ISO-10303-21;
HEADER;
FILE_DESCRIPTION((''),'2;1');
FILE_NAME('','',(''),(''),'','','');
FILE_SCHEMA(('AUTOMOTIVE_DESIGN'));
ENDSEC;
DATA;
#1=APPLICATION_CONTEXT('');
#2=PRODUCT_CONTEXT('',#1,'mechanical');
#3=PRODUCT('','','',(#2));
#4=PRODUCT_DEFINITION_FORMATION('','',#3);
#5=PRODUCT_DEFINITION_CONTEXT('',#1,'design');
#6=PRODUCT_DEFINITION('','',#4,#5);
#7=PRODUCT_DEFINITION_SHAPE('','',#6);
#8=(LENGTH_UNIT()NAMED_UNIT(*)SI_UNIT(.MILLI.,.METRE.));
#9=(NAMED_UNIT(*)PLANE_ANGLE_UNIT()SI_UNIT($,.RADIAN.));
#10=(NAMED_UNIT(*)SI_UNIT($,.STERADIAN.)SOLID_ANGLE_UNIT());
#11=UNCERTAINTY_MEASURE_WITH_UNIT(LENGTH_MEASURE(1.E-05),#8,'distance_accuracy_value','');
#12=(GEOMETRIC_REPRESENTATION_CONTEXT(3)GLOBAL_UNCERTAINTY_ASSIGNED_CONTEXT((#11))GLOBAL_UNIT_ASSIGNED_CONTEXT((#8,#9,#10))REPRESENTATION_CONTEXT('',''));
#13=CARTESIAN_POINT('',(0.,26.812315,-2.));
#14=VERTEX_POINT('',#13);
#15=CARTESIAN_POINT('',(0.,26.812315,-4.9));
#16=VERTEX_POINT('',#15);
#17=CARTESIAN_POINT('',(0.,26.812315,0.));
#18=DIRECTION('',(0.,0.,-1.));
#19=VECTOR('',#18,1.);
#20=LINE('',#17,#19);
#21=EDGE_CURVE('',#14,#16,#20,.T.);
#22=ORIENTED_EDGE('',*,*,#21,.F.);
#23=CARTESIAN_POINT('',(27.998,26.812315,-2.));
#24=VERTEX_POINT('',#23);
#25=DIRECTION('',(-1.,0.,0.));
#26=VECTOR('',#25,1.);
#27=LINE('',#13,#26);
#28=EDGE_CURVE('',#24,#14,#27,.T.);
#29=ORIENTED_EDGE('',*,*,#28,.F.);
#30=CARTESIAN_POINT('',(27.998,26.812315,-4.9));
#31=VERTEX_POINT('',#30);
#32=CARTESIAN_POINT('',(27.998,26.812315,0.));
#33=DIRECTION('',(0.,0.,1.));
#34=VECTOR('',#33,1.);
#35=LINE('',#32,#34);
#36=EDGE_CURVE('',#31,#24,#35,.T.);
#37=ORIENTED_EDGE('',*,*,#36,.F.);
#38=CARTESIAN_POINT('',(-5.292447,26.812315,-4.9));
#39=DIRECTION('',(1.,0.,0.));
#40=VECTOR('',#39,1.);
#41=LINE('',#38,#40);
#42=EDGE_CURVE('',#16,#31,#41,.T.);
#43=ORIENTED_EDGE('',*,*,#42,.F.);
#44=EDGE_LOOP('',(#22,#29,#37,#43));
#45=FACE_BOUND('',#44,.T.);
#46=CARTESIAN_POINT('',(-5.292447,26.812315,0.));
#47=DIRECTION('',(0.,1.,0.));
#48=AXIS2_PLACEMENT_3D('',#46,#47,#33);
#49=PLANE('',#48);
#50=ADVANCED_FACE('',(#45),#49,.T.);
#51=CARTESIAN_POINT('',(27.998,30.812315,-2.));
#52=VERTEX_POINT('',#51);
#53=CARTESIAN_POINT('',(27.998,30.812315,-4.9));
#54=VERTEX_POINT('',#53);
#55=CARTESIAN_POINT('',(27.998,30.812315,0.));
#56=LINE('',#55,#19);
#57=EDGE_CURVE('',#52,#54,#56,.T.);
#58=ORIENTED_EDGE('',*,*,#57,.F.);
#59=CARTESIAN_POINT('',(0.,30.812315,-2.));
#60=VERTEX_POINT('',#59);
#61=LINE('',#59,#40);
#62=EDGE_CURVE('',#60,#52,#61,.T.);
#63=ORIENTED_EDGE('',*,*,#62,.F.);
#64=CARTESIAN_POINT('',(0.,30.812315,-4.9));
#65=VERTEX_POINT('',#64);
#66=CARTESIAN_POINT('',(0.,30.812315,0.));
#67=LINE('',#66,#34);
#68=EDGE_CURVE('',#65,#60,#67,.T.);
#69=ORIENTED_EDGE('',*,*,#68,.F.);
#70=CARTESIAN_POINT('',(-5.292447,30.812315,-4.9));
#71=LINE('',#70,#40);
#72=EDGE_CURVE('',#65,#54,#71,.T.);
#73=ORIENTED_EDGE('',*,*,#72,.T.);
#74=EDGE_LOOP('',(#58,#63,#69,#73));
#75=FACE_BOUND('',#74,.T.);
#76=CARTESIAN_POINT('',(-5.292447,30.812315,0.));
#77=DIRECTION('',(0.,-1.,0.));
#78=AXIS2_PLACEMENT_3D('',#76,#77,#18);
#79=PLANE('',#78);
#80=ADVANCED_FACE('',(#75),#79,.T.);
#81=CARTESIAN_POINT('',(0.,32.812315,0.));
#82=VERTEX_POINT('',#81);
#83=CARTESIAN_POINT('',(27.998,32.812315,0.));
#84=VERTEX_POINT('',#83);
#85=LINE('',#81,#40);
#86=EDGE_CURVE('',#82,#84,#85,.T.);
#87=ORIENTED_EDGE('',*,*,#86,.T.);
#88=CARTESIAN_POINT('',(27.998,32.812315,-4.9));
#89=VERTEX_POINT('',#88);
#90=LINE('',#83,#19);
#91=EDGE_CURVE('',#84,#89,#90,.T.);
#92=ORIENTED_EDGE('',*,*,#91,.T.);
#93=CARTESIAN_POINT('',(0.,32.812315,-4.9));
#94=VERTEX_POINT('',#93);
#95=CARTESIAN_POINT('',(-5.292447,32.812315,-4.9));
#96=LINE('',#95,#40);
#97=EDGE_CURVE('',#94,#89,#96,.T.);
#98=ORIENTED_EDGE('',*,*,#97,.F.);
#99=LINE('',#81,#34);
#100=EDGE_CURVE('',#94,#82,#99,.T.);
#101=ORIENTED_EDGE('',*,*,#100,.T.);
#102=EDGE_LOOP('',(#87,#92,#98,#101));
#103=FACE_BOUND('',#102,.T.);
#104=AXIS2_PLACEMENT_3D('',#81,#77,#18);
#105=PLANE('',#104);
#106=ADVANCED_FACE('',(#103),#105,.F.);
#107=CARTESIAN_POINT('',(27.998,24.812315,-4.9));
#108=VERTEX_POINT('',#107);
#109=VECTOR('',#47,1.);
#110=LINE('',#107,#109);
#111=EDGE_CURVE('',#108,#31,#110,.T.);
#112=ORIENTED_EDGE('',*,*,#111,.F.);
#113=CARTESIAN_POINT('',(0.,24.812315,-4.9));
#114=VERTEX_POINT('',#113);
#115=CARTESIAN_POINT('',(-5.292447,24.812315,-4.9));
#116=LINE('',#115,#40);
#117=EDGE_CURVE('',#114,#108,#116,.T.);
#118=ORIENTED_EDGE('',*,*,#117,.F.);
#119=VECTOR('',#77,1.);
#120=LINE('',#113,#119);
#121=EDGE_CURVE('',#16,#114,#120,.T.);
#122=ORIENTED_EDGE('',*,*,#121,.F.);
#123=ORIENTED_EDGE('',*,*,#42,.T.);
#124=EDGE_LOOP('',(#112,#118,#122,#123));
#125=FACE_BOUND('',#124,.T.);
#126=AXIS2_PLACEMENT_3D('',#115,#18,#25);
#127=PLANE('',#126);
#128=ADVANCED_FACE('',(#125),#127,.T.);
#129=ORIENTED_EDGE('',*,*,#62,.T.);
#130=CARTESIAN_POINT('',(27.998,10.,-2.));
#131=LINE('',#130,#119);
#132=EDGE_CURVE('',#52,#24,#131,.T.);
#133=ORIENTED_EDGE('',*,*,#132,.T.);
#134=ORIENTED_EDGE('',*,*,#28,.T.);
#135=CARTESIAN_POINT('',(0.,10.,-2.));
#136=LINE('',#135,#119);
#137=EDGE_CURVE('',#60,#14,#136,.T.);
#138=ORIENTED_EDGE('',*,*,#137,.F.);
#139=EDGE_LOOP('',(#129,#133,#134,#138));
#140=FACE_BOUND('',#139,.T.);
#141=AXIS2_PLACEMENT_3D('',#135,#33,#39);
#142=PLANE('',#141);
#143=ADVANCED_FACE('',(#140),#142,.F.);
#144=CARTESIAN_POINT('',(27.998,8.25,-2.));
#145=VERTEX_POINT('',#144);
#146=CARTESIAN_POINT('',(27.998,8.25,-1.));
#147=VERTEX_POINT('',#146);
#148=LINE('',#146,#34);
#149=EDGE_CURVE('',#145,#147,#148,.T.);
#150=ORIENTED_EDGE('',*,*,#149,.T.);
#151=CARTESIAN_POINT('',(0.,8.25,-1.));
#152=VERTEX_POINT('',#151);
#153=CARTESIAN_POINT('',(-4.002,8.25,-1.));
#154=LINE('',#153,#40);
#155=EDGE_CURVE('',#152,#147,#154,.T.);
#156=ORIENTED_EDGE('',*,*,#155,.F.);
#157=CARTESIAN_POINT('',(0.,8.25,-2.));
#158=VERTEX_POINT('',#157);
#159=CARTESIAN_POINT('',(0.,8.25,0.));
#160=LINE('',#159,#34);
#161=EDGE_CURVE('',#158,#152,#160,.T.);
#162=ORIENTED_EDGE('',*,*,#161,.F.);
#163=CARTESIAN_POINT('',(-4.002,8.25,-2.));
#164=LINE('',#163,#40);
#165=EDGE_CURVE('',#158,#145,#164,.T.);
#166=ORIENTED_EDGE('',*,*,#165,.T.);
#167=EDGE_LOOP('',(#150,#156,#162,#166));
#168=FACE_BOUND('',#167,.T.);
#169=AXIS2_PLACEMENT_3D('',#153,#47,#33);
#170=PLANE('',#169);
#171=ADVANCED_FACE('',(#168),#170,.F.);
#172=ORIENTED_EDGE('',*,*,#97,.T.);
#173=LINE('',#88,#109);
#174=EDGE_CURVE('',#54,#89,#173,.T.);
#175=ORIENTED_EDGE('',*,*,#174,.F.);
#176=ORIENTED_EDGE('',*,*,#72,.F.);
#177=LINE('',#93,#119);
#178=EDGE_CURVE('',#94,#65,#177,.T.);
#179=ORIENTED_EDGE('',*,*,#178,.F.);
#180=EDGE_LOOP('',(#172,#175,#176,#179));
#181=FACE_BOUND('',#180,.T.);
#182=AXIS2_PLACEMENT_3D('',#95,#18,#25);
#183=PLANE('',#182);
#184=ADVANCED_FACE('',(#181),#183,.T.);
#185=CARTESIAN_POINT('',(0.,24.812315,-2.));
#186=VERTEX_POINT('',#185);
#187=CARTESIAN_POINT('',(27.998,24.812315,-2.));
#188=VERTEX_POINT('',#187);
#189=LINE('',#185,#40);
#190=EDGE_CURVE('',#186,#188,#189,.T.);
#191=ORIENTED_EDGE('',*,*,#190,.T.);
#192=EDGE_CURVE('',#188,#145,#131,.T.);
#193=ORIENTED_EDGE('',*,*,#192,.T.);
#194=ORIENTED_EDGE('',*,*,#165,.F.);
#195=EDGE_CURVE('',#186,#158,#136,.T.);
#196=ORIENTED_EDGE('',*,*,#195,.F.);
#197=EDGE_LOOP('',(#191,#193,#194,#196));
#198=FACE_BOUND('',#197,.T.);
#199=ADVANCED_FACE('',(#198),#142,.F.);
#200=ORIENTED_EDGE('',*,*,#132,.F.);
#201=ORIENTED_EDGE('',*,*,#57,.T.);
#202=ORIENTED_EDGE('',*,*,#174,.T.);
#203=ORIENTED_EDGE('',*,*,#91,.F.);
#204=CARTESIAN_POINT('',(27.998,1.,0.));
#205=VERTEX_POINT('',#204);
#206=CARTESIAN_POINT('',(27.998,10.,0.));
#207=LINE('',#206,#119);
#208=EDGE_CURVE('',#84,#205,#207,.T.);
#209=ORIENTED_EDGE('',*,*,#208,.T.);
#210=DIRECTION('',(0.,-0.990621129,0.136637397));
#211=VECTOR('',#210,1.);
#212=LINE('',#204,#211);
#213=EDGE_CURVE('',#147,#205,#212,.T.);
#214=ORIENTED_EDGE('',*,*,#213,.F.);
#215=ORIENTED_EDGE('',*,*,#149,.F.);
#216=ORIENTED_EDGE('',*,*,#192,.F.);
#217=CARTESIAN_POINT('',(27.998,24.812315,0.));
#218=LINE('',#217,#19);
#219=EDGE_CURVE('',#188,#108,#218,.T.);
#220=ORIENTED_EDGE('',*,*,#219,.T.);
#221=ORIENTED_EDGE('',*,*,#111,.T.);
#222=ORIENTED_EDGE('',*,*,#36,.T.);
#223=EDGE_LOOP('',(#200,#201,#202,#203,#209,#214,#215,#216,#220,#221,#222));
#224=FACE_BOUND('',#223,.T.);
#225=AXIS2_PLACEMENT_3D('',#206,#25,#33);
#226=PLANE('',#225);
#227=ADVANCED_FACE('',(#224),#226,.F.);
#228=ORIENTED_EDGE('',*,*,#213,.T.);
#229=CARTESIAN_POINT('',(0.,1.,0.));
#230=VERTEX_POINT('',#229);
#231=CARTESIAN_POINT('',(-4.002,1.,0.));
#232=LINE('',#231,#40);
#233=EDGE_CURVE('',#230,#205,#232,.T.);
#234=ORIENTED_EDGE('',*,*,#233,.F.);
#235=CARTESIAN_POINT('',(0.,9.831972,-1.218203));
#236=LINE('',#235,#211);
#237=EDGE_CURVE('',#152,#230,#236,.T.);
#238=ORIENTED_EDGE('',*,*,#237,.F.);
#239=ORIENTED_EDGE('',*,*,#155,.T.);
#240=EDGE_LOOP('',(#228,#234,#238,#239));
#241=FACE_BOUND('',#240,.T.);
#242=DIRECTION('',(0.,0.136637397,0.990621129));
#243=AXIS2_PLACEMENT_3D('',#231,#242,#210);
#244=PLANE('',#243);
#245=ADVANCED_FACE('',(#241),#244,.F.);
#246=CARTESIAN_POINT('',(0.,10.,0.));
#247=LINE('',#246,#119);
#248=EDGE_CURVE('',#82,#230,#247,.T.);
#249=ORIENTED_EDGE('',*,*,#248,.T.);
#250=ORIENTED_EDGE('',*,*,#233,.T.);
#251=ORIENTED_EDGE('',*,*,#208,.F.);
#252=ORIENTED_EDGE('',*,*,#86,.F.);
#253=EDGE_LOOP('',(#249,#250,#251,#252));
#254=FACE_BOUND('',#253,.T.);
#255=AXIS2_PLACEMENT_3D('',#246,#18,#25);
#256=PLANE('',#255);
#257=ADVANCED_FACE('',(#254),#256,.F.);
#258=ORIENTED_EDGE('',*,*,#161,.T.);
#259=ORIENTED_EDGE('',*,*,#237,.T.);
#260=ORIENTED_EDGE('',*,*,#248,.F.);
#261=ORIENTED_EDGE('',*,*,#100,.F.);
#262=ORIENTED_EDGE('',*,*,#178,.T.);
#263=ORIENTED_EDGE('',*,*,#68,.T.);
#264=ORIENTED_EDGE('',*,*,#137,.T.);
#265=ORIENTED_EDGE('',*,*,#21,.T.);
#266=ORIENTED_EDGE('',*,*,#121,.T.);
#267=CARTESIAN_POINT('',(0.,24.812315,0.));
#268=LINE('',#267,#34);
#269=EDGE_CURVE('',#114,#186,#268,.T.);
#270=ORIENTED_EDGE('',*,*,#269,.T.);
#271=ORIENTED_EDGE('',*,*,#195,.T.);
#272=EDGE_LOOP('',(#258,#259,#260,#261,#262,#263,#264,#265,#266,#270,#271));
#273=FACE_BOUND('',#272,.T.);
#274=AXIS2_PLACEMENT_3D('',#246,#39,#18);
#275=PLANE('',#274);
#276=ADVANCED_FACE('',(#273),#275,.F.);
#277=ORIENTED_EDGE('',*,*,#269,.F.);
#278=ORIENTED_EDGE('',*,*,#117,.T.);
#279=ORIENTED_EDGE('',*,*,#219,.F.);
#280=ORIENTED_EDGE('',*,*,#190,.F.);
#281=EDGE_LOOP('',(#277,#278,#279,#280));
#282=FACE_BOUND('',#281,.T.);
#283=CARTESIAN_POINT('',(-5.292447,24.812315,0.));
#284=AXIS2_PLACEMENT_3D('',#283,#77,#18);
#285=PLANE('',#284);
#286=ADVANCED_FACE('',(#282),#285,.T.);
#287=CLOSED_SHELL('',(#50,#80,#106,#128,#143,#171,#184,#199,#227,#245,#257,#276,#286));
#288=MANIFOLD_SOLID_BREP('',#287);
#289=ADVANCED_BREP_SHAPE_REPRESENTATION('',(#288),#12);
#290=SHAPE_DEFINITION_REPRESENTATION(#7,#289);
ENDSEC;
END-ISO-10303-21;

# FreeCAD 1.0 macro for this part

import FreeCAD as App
import Part
import Sketcher

V = App.Vector
Q = App.Units.Quantity

doc = App.newDocument("Part")
body = doc.addObject("PartDesign::Body", "Body")

sketch1 = body.newObject("Sketcher::SketchObject", "Sketch")
sketch1.AttachmentSupport = (doc.getObject("XZ_Plane"), [""])
sketch1.MapMode = "FlatFace"
sketch1.addGeometry([
    Part.LineSegment(V(0, -2, 0), V(0, 0, 0)),
    Part.LineSegment(V(0, 0, 0), V(27.998, 0, 0)),
    Part.LineSegment(V(27.998, 0, 0), V(27.998, -2, 0)),
    Part.LineSegment(V(27.998, -2, 0), V(0, -2, 0)),
], False)
sketch1.addConstraint([
    Sketcher.Constraint("Coincident", 0, 2, 1, 1),
    Sketcher.Constraint("Coincident", 1, 2, 2, 1),
    Sketcher.Constraint("Coincident", 2, 2, 3, 1),
    Sketcher.Constraint("Coincident", 3, 2, 0, 1),
    Sketcher.Constraint("Vertical", 0),
    Sketcher.Constraint("Horizontal", 1),
    Sketcher.Constraint("Vertical", 2),
    Sketcher.Constraint("Horizontal", 3),
    Sketcher.Constraint("Coincident", 0, 2, -1, 1),
    Sketcher.Constraint("DistanceY", 0, 1, 0, 2, Q("2 mm")),
    Sketcher.Constraint("DistanceX", 1, 1, 1, 2, Q("27.998 mm")),
])
pad1 = body.newObject("PartDesign::Pad", "Pad")
pad1.Profile = sketch1
pad1.Length = 10
pad1.Reversed = True

sketch2 = body.newObject("Sketcher::SketchObject", "Sketch001")
sketch2.AttachmentSupport = (doc.getObject("YZ_Plane"), [""])
sketch2.MapMode = "FlatFace"
sketch2.AttachmentOffset = App.Placement(V(0, 0, 27.998), App.Rotation())
sketch2.addGeometry([
    Part.LineSegment(V(8.25, -2, 0), V(8.25, -1, 0)),
    Part.LineSegment(V(8.25, -1, 0), V(1, 0, 0)),
    Part.LineSegment(V(1, 0, 0), V(0, 0, 0)),
    Part.LineSegment(V(0, 0, 0), V(0, -2, 0)),
    Part.LineSegment(V(0, -2, 0), V(8.25, -2, 0)),
], False)
sketch2.addConstraint([
    Sketcher.Constraint("Coincident", 0, 2, 1, 1),
    Sketcher.Constraint("Coincident", 1, 2, 2, 1),
    Sketcher.Constraint("Coincident", 2, 2, 3, 1),
    Sketcher.Constraint("Coincident", 3, 2, 4, 1),
    Sketcher.Constraint("Coincident", 4, 2, 0, 1),
    Sketcher.Constraint("Vertical", 0),
    Sketcher.Constraint("Horizontal", 2),
    Sketcher.Constraint("Vertical", 3),
    Sketcher.Constraint("Horizontal", 4),
    Sketcher.Constraint("Coincident", 2, 2, -1, 1),
    Sketcher.Constraint("Equal", 2, 0),
    Sketcher.Constraint("DistanceX", 2, 2, 2, 1, Q("1 mm")),
    Sketcher.Constraint("DistanceY", 3, 2, 3, 1, Q("2 mm")),
    Sketcher.Constraint("DistanceX", 4, 1, 4, 2, Q("8.25 mm")),
])
pocket1 = body.newObject("PartDesign::Pocket", "Pocket")
pocket1.Profile = sketch2
pocket1.Length = 32

sketch3 = body.newObject("Sketcher::SketchObject", "Sketch002")
sketch3.AttachmentSupport = (doc.getObject("XZ_Plane"), [""])
sketch3.MapMode = "FlatFace"
sketch3.AttachmentOffset = App.Placement(V(0, 0, -10), App.Rotation())
sketch3.addGeometry([
    Part.LineSegment(V(0, -2, 0), V(0, 0, 0)),
    Part.LineSegment(V(0, 0, 0), V(27.998, 0, 0)),
    Part.LineSegment(V(27.998, 0, 0), V(27.998, -2, 0)),
    Part.LineSegment(V(27.998, -2, 0), V(0, -2, 0)),
], False)
sketch3.addConstraint([
    Sketcher.Constraint("Coincident", 0, 2, 1, 1),
    Sketcher.Constraint("Coincident", 1, 2, 2, 1),
    Sketcher.Constraint("Coincident", 2, 2, 3, 1),
    Sketcher.Constraint("Coincident", 3, 2, 0, 1),
    Sketcher.Constraint("Vertical", 0),
    Sketcher.Constraint("Horizontal", 1),
    Sketcher.Constraint("Vertical", 2),
    Sketcher.Constraint("Horizontal", 3),
    Sketcher.Constraint("Coincident", 0, 2, -1, 1),
    Sketcher.Constraint("DistanceY", 0, 1, 0, 2, Q("2 mm")),
    Sketcher.Constraint("DistanceX", 1, 1, 1, 2, Q("27.998 mm")),
])
pad2 = body.newObject("PartDesign::Pad", "Pad001")
pad2.Profile = sketch3
pad2.Length = 22.812315
pad2.Reversed = True

sketch4 = body.newObject("Sketcher::SketchObject", "Sketch003")
sketch4.AttachmentSupport = (doc.getObject("YZ_Plane"), [""])
sketch4.MapMode = "FlatFace"
sketch4.AttachmentOffset = App.Placement(V(0, 0, 27.998), App.Rotation())
sketch4.addGeometry([
    Part.LineSegment(V(32.812315, 0, 0), V(30.812315, 0, 0)),
    Part.LineSegment(V(30.812315, 0, 0), V(30.812315, -4.9, 0)),
    Part.LineSegment(V(30.812315, -4.9, 0), V(32.812315, -4.9, 0)),
    Part.LineSegment(V(32.812315, -4.9, 0), V(32.812315, 0, 0)),
    Part.LineSegment(V(26.812315, 0, 0), V(24.812315, 0, 0)),
    Part.LineSegment(V(24.812315, 0, 0), V(24.812315, -4.9, 0)),
    Part.LineSegment(V(24.812315, -4.9, 0), V(26.812315, -4.9, 0)),
    Part.LineSegment(V(26.812315, -4.9, 0), V(26.812315, 0, 0)),
], False)
sketch4.addConstraint([
    Sketcher.Constraint("Coincident", 0, 2, 1, 1),
    Sketcher.Constraint("Coincident", 1, 2, 2, 1),
    Sketcher.Constraint("Coincident", 2, 2, 3, 1),
    Sketcher.Constraint("Coincident", 3, 2, 0, 1),
    Sketcher.Constraint("Coincident", 4, 2, 5, 1),
    Sketcher.Constraint("Coincident", 5, 2, 6, 1),
    Sketcher.Constraint("Coincident", 6, 2, 7, 1),
    Sketcher.Constraint("Coincident", 7, 2, 4, 1),
    Sketcher.Constraint("Horizontal", 0),
    Sketcher.Constraint("Vertical", 1),
    Sketcher.Constraint("Horizontal", 2),
    Sketcher.Constraint("Vertical", 3),
    Sketcher.Constraint("Horizontal", 4),
    Sketcher.Constraint("Vertical", 5),
    Sketcher.Constraint("Horizontal", 6),
    Sketcher.Constraint("Vertical", 7),
    Sketcher.Constraint("PointOnObject", 0, 2, -1),
    Sketcher.Constraint("PointOnObject", 4, 2, -1),
    Sketcher.Constraint("Horizontal", 2, 2, 5, 2),
    Sketcher.Constraint("Equal", 2, 4),
    Sketcher.Constraint("DistanceX", 0, 2, 0, 1, Q("2 mm")),
    Sketcher.Constraint("DistanceY", 1, 2, 1, 1, Q("4.9 mm")),
    Sketcher.Constraint("DistanceX", 4, 2, 0, 2, Q("6 mm")),
    Sketcher.Constraint("DistanceX", -1, 1, 0, 2, Q("30.812315 mm")),
])
pad3 = body.newObject("PartDesign::Pad", "Pad002")
pad3.Profile = sketch4
pad3.Length = 27.998
pad3.Reversed = True

doc.recompute()
